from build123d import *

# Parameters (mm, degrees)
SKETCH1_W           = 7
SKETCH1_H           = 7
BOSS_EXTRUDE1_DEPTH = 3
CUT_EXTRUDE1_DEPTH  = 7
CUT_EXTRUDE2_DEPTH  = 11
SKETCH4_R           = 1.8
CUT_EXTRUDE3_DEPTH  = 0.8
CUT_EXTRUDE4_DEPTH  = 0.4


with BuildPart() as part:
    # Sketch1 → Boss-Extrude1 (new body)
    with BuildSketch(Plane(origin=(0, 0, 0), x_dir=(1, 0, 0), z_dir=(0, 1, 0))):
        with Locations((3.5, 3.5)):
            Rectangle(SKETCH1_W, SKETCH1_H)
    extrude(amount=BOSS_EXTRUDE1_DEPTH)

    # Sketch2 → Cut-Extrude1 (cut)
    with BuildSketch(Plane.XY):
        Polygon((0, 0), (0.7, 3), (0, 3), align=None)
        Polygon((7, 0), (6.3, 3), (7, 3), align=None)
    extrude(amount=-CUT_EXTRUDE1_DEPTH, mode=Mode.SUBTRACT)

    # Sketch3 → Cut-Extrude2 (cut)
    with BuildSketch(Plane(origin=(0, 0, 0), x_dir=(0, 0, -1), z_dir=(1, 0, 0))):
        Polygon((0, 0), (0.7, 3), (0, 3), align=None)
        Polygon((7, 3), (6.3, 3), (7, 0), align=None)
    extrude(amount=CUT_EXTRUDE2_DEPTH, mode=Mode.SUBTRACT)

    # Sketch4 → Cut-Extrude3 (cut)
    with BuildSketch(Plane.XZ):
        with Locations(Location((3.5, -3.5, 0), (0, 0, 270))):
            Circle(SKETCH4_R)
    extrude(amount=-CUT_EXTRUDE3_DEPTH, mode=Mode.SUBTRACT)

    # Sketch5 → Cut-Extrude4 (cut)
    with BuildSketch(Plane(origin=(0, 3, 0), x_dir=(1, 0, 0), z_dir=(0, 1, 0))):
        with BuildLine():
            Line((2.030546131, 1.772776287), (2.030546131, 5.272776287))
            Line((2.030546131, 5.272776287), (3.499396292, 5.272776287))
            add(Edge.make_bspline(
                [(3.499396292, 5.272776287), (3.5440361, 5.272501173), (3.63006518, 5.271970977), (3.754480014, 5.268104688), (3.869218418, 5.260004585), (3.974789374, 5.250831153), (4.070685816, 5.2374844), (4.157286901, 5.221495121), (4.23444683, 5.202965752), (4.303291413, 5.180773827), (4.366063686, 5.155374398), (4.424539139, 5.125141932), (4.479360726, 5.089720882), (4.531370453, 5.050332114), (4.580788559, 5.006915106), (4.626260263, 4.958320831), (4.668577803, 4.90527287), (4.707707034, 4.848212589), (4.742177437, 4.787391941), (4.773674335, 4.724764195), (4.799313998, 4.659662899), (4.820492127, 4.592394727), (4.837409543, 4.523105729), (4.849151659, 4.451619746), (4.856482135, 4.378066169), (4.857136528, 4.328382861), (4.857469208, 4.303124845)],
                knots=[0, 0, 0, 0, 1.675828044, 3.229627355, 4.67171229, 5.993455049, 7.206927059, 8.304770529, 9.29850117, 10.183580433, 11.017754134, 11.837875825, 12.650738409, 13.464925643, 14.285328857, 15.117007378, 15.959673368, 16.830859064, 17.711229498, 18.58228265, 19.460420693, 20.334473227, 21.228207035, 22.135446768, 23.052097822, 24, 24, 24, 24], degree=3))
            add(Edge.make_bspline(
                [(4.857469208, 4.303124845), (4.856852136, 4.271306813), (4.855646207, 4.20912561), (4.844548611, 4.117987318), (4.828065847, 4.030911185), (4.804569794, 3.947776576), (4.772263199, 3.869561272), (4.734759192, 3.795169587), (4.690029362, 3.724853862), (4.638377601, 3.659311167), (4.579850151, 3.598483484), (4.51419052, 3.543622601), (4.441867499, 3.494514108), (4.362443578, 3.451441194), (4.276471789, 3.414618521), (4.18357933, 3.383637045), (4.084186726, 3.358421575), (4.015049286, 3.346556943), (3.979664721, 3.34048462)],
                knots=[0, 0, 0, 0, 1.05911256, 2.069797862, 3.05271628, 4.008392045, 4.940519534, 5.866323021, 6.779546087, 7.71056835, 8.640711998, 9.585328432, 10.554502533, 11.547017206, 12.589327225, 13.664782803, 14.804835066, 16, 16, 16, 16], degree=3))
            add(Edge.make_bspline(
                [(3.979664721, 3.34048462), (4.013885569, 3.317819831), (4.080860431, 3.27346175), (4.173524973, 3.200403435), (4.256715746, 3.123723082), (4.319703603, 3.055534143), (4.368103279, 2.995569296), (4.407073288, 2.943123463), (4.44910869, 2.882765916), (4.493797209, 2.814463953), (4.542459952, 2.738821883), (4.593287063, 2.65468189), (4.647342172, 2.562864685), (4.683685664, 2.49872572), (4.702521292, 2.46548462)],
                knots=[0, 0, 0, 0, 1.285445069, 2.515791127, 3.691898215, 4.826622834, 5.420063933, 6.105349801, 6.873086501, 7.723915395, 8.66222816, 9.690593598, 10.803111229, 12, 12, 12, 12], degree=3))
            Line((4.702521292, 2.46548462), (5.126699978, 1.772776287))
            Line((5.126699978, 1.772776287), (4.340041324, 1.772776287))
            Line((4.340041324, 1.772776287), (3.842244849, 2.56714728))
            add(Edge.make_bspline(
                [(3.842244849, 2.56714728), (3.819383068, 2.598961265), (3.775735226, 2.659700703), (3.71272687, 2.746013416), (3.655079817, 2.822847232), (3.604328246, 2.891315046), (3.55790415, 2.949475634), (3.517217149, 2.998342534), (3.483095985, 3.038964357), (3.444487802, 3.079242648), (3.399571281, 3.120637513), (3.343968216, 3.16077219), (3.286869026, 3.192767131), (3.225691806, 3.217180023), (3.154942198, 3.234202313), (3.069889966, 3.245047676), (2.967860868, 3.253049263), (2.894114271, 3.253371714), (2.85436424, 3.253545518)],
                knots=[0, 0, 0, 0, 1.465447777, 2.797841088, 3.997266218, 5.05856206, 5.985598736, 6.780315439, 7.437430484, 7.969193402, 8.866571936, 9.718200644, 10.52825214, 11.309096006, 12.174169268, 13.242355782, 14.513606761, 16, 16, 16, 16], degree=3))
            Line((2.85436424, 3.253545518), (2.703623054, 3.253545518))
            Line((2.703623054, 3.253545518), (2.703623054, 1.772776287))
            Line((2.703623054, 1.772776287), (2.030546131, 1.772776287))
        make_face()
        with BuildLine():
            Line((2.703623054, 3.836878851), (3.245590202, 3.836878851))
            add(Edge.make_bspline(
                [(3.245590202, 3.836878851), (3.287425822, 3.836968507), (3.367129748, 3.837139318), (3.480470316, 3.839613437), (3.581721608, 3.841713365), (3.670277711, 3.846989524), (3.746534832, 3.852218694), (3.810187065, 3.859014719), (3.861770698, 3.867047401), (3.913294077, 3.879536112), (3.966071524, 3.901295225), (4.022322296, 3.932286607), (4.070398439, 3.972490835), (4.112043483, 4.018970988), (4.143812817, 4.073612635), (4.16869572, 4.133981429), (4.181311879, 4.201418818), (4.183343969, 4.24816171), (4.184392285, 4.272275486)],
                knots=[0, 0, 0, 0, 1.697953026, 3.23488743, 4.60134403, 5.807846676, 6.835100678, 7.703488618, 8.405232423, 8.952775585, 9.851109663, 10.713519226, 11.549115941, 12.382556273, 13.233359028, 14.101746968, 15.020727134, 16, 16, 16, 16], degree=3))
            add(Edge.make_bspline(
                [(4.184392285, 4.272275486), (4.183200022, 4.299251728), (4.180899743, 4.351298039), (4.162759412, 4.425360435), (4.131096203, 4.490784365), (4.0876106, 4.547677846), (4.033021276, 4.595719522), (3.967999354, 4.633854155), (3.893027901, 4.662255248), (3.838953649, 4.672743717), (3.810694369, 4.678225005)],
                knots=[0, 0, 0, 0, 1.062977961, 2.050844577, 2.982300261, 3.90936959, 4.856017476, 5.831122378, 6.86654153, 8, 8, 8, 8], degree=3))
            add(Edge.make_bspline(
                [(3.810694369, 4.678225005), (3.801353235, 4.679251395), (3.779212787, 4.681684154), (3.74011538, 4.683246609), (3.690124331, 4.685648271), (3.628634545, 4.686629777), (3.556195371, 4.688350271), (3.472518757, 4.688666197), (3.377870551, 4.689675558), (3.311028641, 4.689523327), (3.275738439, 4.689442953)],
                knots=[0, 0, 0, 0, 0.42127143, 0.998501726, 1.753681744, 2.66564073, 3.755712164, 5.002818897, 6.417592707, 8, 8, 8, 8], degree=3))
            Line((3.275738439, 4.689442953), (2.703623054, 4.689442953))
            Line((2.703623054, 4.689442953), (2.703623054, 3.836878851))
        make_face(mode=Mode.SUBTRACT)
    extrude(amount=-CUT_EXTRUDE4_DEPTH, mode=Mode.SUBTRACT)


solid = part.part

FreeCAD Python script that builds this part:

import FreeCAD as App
import Part
import Sketcher

doc = App.newDocument("Part")
params = doc.addObject("Spreadsheet::Sheet", "Params")
for row, (alias, value) in enumerate([
    ("sketch1_width", "7 mm"),
    ("pad1_length", "3 mm"),
    ("sketch2_height", "3 mm"),
    ("sketch2_width", "0.7 mm"),
    ("pocket1_length", "7 mm"),
    ("sketch3_width", "3 mm"),
    ("sketch3_height", "0.7 mm"),
    ("pocket2_length", "11 mm"),
    ("sketch4_diameter", "3.6 mm"),
    ("pocket3_length", "0.8 mm"),
    ("sketch5_height", "3.5 mm"),
    ("pocket4_length", "0.4 mm"),
], start=1):
    params.set(f"A{row}", alias)
    params.set(f"B{row}", "=" + value)
    params.setAlias(f"B{row}", alias)

body = doc.addObject("PartDesign::Body", "Body")

# Sketch on XZ plane
sketch1 = body.newObject("Sketcher::SketchObject", "Sketch")
sketch1.AttachmentSupport = (doc.getObject("XZ_Plane"), [""])
sketch1.MapMode = "FlatFace"
sketch1.addGeometry(Part.LineSegment(App.Vector(0, -7, 0), App.Vector(0, 0, 0)), False)
sketch1.addGeometry(Part.LineSegment(App.Vector(0, 0, 0), App.Vector(7, 0, 0)), False)
sketch1.addGeometry(Part.LineSegment(App.Vector(7, 0, 0), App.Vector(7, -7, 0)), False)
sketch1.addGeometry(Part.LineSegment(App.Vector(7, -7, 0), App.Vector(0, -7, 0)), False)
sketch1.addConstraint(Sketcher.Constraint("Coincident", 0, 2, 1, 1))
sketch1.addConstraint(Sketcher.Constraint("Coincident", 1, 2, 2, 1))
sketch1.addConstraint(Sketcher.Constraint("Coincident", 2, 2, 3, 1))
sketch1.addConstraint(Sketcher.Constraint("Coincident", 3, 2, 0, 1))
sketch1.addConstraint(Sketcher.Constraint("Vertical", 0))
sketch1.addConstraint(Sketcher.Constraint("Horizontal", 1))
sketch1.addConstraint(Sketcher.Constraint("Vertical", 2))
sketch1.addConstraint(Sketcher.Constraint("Horizontal", 3))
sketch1.addConstraint(Sketcher.Constraint("Coincident", 0, 2, -1, 1))
sketch1.addConstraint(Sketcher.Constraint("Equal", 3, 0))
sketch1.addConstraint(Sketcher.Constraint("DistanceX", 1, 1, 1, 2, 7.0))
sketch1.setExpression("Constraints[10]", "Params.sketch1_width")
pad1 = body.newObject("PartDesign::Pad", "Pad")
pad1.Profile = sketch1
pad1.setExpression("Length", "Params.pad1_length")
pad1.Reversed = True

# Sketch on XY plane
sketch2 = body.newObject("Sketcher::SketchObject", "Sketch001")
sketch2.AttachmentSupport = (doc.getObject("XY_Plane"), [""])
sketch2.MapMode = "FlatFace"
sketch2.addGeometry(Part.LineSegment(App.Vector(0, 0, 0), App.Vector(0.7, 3, 0)), False)
sketch2.addGeometry(Part.LineSegment(App.Vector(0.7, 3, 0), App.Vector(0, 3, 0)), False)
sketch2.addGeometry(Part.LineSegment(App.Vector(0, 3, 0), App.Vector(0, 0, 0)), False)
sketch2.addGeometry(Part.LineSegment(App.Vector(6.3, 3, 0), App.Vector(7, 0, 0)), False)
sketch2.addGeometry(Part.LineSegment(App.Vector(7, 0, 0), App.Vector(7, 3, 0)), False)
sketch2.addGeometry(Part.LineSegment(App.Vector(7, 3, 0), App.Vector(6.3, 3, 0)), False)
sketch2.addConstraint(Sketcher.Constraint("Coincident", 0, 2, 1, 1))
sketch2.addConstraint(Sketcher.Constraint("Coincident", 1, 2, 2, 1))
sketch2.addConstraint(Sketcher.Constraint("Coincident", 2, 2, 0, 1))
sketch2.addConstraint(Sketcher.Constraint("Coincident", 3, 2, 4, 1))
sketch2.addConstraint(Sketcher.Constraint("Coincident", 4, 2, 5, 1))
sketch2.addConstraint(Sketcher.Constraint("Coincident", 5, 2, 3, 1))
sketch2.addConstraint(Sketcher.Constraint("Horizontal", 1))
sketch2.addConstraint(Sketcher.Constraint("Vertical", 2))
sketch2.addConstraint(Sketcher.Constraint("Vertical", 4))
sketch2.addConstraint(Sketcher.Constraint("Horizontal", 5))
sketch2.addConstraint(Sketcher.Constraint("Coincident", 2, 2, -1, 1))
sketch2.addConstraint(Sketcher.Constraint("PointOnObject", 3, 2, -1))
sketch2.addConstraint(Sketcher.Constraint("Horizontal", 1, 2, 4, 2))
sketch2.addConstraint(Sketcher.Constraint("Equal", 1, 5))
sketch2.addConstraint(Sketcher.Constraint("DistanceY", 2, 2, 2, 1, 3.0))
sketch2.addConstraint(Sketcher.Constraint("DistanceX", 1, 2, 1, 1, 0.7))
sketch2.addConstraint(Sketcher.Constraint("DistanceX", -1, 1, 3, 2, 7.0))
sketch2.setExpression("Constraints[14]", "Params.sketch2_height")
sketch2.setExpression("Constraints[15]", "Params.sketch2_width")
pocket1 = body.newObject("PartDesign::Pocket", "Pocket")
pocket1.Profile = sketch2
pocket1.setExpression("Length", "Params.pocket1_length")

# Sketch on YZ plane
sketch3 = body.newObject("Sketcher::SketchObject", "Sketch002")
sketch3.AttachmentSupport = (doc.getObject("YZ_Plane"), [""])
sketch3.MapMode = "FlatFace"
sketch3.addGeometry(Part.LineSegment(App.Vector(0, 0, 0), App.Vector(3, -0.7, 0)), False)
sketch3.addGeometry(Part.LineSegment(App.Vector(3, -0.7, 0), App.Vector(3, 0, 0)), False)
sketch3.addGeometry(Part.LineSegment(App.Vector(3, 0, 0), App.Vector(0, 0, 0)), False)
sketch3.addGeometry(Part.LineSegment(App.Vector(3, -7, 0), App.Vector(3, -6.3, 0)), False)
sketch3.addGeometry(Part.LineSegment(App.Vector(3, -6.3, 0), App.Vector(0, -7, 0)), False)
sketch3.addGeometry(Part.LineSegment(App.Vector(0, -7, 0), App.Vector(3, -7, 0)), False)
sketch3.addConstraint(Sketcher.Constraint("Coincident", 0, 2, 1, 1))
sketch3.addConstraint(Sketcher.Constraint("Coincident", 1, 2, 2, 1))
sketch3.addConstraint(Sketcher.Constraint("Coincident", 2, 2, 0, 1))
sketch3.addConstraint(Sketcher.Constraint("Coincident", 3, 2, 4, 1))
sketch3.addConstraint(Sketcher.Constraint("Coincident", 4, 2, 5, 1))
sketch3.addConstraint(Sketcher.Constraint("Coincident", 5, 2, 3, 1))
sketch3.addConstraint(Sketcher.Constraint("Vertical", 1))
sketch3.addConstraint(Sketcher.Constraint("Horizontal", 2))
sketch3.addConstraint(Sketcher.Constraint("Vertical", 3))
sketch3.addConstraint(Sketcher.Constraint("Horizontal", 5))
sketch3.addConstraint(Sketcher.Constraint("Coincident", 2, 2, -1, 1))
sketch3.addConstraint(Sketcher.Constraint("PointOnObject", 4, 2, -2))
sketch3.addConstraint(Sketcher.Constraint("Vertical", 1, 2, 3, 2))
sketch3.addConstraint(Sketcher.Constraint("Equal", 1, 3))
sketch3.addConstraint(Sketcher.Constraint("DistanceX", 2, 2, 2, 1, 3.0))
sketch3.addConstraint(Sketcher.Constraint("DistanceY", 1, 1, 1, 2, 0.7))
sketch3.addConstraint(Sketcher.Constraint("DistanceY", 4, 2, -1, 1, 7.0))
sketch3.setExpression("Constraints[14]", "Params.sketch3_width")
sketch3.setExpression("Constraints[15]", "Params.sketch3_height")
pocket2 = body.newObject("PartDesign::Pocket", "Pocket001")
pocket2.Profile = sketch3
pocket2.setExpression("Length", "Params.pocket2_length")
pocket2.Reversed = True

# Sketch on XZ plane
sketch4 = body.newObject("Sketcher::SketchObject", "Sketch003")
sketch4.AttachmentSupport = (doc.getObject("XZ_Plane"), [""])
sketch4.MapMode = "FlatFace"
sketch4.addGeometry(Part.Circle(App.Vector(3.5, -3.5, 0), App.Vector(0, 0, 1), 1.8), False)
sketch4.addConstraint(Sketcher.Constraint("Diameter", 0, 3.6))
sketch4.addConstraint(Sketcher.Constraint("DistanceX", -1, 1, 0, 3, 3.5))
sketch4.addConstraint(Sketcher.Constraint("DistanceY", 0, 3, -1, 1, 3.5))
sketch4.setExpression("Constraints[0]", "Params.sketch4_diameter")
pocket3 = body.newObject("PartDesign::Pocket", "Pocket002")
pocket3.Profile = sketch4
pocket3.setExpression("Length", "Params.pocket3_length")

# Sketch on XZ plane
sketch5 = body.newObject("Sketcher::SketchObject", "Sketch004")
sketch5.AttachmentSupport = (doc.getObject("XZ_Plane"), [""])
sketch5.MapMode = "FlatFace"
sketch5.AttachmentOffset = App.Placement(App.Vector(0, 0, -3), App.Rotation())
sketch5.addGeometry(Part.LineSegment(App.Vector(2.030546, -5.272776, 0), App.Vector(2.030546, -1.772776, 0)), False)
sketch5.addGeometry(Part.LineSegment(App.Vector(2.030546, -1.772776, 0), App.Vector(2.703623, -1.772776, 0)), False)
sketch5.addGeometry(Part.LineSegment(App.Vector(2.703623, -1.772776, 0), App.Vector(2.703623, -3.253546, 0)), False)
sketch5.addGeometry(Part.LineSegment(App.Vector(2.703623, -3.253546, 0), App.Vector(2.854364, -3.253546, 0)), False)
sketch5.addGeometry(Part.BSplineCurve([App.Vector(3.842245, -2.567147, 0), App.Vector(3.819383, -2.598961, 0), App.Vector(3.775735, -2.659701, 0), App.Vector(3.712727, -2.746013, 0), App.Vector(3.65508, -2.822847, 0), App.Vector(3.604328, -2.891315, 0), App.Vector(3.557904, -2.949476, 0), App.Vector(3.517217, -2.998343, 0), App.Vector(3.483096, -3.038964, 0), App.Vector(3.444488, -3.079243, 0), App.Vector(3.399571, -3.120638, 0), App.Vector(3.343968, -3.160772, 0), App.Vector(3.286869, -3.192767, 0), App.Vector(3.225692, -3.21718, 0), App.Vector(3.154942, -3.234202, 0), App.Vector(3.06989, -3.245048, 0), App.Vector(2.967861, -3.253049, 0), App.Vector(2.894114, -3.253372, 0), App.Vector(2.854364, -3.253546, 0)], [4, 1, 1, 1, 1, 1, 1, 1, 1, 1, 1, 1, 1, 1, 1, 1, 4], [0, 1.465447777, 2.797841088, 3.997266218, 5.05856206, 5.985598736, 6.780315439, 7.437430484, 7.969193402, 8.866571936, 9.718200644, 10.52825214, 11.309096006, 12.174169268, 13.242355782, 14.513606761, 16], False, 3, [1, 1, 1, 1, 1, 1, 1, 1, 1, 1, 1, 1, 1, 1, 1, 1, 1, 1, 1], False), False)
sketch5.addGeometry(Part.LineSegment(App.Vector(3.842245, -2.567147, 0), App.Vector(4.340041, -1.772776, 0)), False)
sketch5.addGeometry(Part.LineSegment(App.Vector(4.340041, -1.772776, 0), App.Vector(5.1267, -1.772776, 0)), False)
sketch5.addGeometry(Part.LineSegment(App.Vector(5.1267, -1.772776, 0), App.Vector(4.702521, -2.465485, 0)), False)
sketch5.addGeometry(Part.BSplineCurve([App.Vector(3.979665, -3.340485, 0), App.Vector(4.013886, -3.31782, 0), App.Vector(4.08086, -3.273462, 0), App.Vector(4.173525, -3.200403, 0), App.Vector(4.256716, -3.123723, 0), App.Vector(4.319704, -3.055534, 0), App.Vector(4.368103, -2.995569, 0), App.Vector(4.407073, -2.943123, 0), App.Vector(4.449109, -2.882766, 0), App.Vector(4.493797, -2.814464, 0), App.Vector(4.54246, -2.738822, 0), App.Vector(4.593287, -2.654682, 0), App.Vector(4.647342, -2.562865, 0), App.Vector(4.683686, -2.498726, 0), App.Vector(4.702521, -2.465485, 0)], [4, 1, 1, 1, 1, 1, 1, 1, 1, 1, 1, 1, 4], [0, 1.285445069, 2.515791127, 3.691898215, 4.826622834, 5.420063933, 6.105349801, 6.873086501, 7.723915395, 8.66222816, 9.690593598, 10.803111229, 12], False, 3, [1, 1, 1, 1, 1, 1, 1, 1, 1, 1, 1, 1, 1, 1, 1], False), False)
sketch5.addGeometry(Part.BSplineCurve([App.Vector(4.857469, -4.303125, 0), App.Vector(4.856852, -4.271307, 0), App.Vector(4.855646, -4.209126, 0), App.Vector(4.844549, -4.117987, 0), App.Vector(4.828066, -4.030911, 0), App.Vector(4.80457, -3.947777, 0), App.Vector(4.772263, -3.869561, 0), App.Vector(4.734759, -3.79517, 0), App.Vector(4.690029, -3.724854, 0), App.Vector(4.638378, -3.659311, 0), App.Vector(4.57985, -3.598483, 0), App.Vector(4.514191, -3.543623, 0), App.Vector(4.441867, -3.494514, 0), App.Vector(4.362444, -3.451441, 0), App.Vector(4.276472, -3.414619, 0), App.Vector(4.183579, -3.383637, 0), App.Vector(4.084187, -3.358422, 0), App.Vector(4.015049, -3.346557, 0), App.Vector(3.979665, -3.340485, 0)], [4, 1, 1, 1, 1, 1, 1, 1, 1, 1, 1, 1, 1, 1, 1, 1, 4], [0, 1.05911256, 2.069797862, 3.05271628, 4.008392045, 4.940519534, 5.866323021, 6.779546087, 7.71056835, 8.640711998, 9.585328432, 10.554502533, 11.547017206, 12.589327225, 13.664782803, 14.804835066, 16], False, 3, [1, 1, 1, 1, 1, 1, 1, 1, 1, 1, 1, 1, 1, 1, 1, 1, 1, 1, 1], False), False)
sketch5.addGeometry(Part.BSplineCurve([App.Vector(3.499396, -5.272776, 0), App.Vector(3.544036, -5.272501, 0), App.Vector(3.630065, -5.271971, 0), App.Vector(3.75448, -5.268105, 0), App.Vector(3.869218, -5.260005, 0), App.Vector(3.974789, -5.250831, 0), App.Vector(4.070686, -5.237484, 0), App.Vector(4.157287, -5.221495, 0), App.Vector(4.234447, -5.202966, 0), App.Vector(4.303291, -5.180774, 0), App.Vector(4.366064, -5.155374, 0), App.Vector(4.424539, -5.125142, 0), App.Vector(4.479361, -5.089721, 0), App.Vector(4.53137, -5.050332, 0), App.Vector(4.580789, -5.006915, 0), App.Vector(4.62626, -4.958321, 0), App.Vector(4.668578, -4.905273, 0), App.Vector(4.707707, -4.848213, 0), App.Vector(4.742177, -4.787392, 0), App.Vector(4.773674, -4.724764, 0), App.Vector(4.799314, -4.659663, 0), App.Vector(4.820492, -4.592395, 0), App.Vector(4.83741, -4.523106, 0), App.Vector(4.849152, -4.45162, 0), App.Vector(4.856482, -4.378066, 0), App.Vector(4.857137, -4.328383, 0), App.Vector(4.857469, -4.303125, 0)], [4, 1, 1, 1, 1, 1, 1, 1, 1, 1, 1, 1, 1, 1, 1, 1, 1, 1, 1, 1, 1, 1, 1, 1, 4], [0, 1.675828044, 3.229627355, 4.67171229, 5.993455049, 7.206927059, 8.304770529, 9.29850117, 10.183580433, 11.017754134, 11.837875825, 12.650738409, 13.464925643, 14.285328857, 15.117007378, 15.959673368, 16.830859064, 17.711229498, 18.58228265, 19.460420693, 20.334473227, 21.228207035, 22.135446768, 23.052097822, 24], False, 3, [1, 1, 1, 1, 1, 1, 1, 1, 1, 1, 1, 1, 1, 1, 1, 1, 1, 1, 1, 1, 1, 1, 1, 1, 1, 1, 1], False), False)
sketch5.addGeometry(Part.LineSegment(App.Vector(3.499396, -5.272776, 0), App.Vector(2.030546, -5.272776, 0)), False)
sketch5.addGeometry(Part.LineSegment(App.Vector(2.703623, -3.836879, 0), App.Vector(2.703623, -4.689443, 0)), False)
sketch5.addGeometry(Part.LineSegment(App.Vector(2.703623, -4.689443, 0), App.Vector(3.275738, -4.689443, 0)), False)
sketch5.addGeometry(Part.BSplineCurve([App.Vector(3.810694, -4.678225, 0), App.Vector(3.801353, -4.679251, 0), App.Vector(3.779213, -4.681684, 0), App.Vector(3.740115, -4.683247, 0), App.Vector(3.690124, -4.685648, 0), App.Vector(3.628635, -4.68663, 0), App.Vector(3.556195, -4.68835, 0), App.Vector(3.472519, -4.688666, 0), App.Vector(3.377871, -4.689676, 0), App.Vector(3.311029, -4.689523, 0), App.Vector(3.275738, -4.689443, 0)], [4, 1, 1, 1, 1, 1, 1, 1, 4], [0, 0.42127143, 0.998501726, 1.753681744, 2.66564073, 3.755712164, 5.002818897, 6.417592707, 8], False, 3, [1, 1, 1, 1, 1, 1, 1, 1, 1, 1, 1], False), False)
sketch5.addGeometry(Part.BSplineCurve([App.Vector(4.184392, -4.272275, 0), App.Vector(4.1832, -4.299252, 0), App.Vector(4.1809, -4.351298, 0), App.Vector(4.162759, -4.42536, 0), App.Vector(4.131096, -4.490784, 0), App.Vector(4.087611, -4.547678, 0), App.Vector(4.033021, -4.59572, 0), App.Vector(3.967999, -4.633854, 0), App.Vector(3.893028, -4.662255, 0), App.Vector(3.838954, -4.672744, 0), App.Vector(3.810694, -4.678225, 0)], [4, 1, 1, 1, 1, 1, 1, 1, 4], [0, 1.062977961, 2.050844577, 2.982300261, 3.90936959, 4.856017476, 5.831122378, 6.86654153, 8], False, 3, [1, 1, 1, 1, 1, 1, 1, 1, 1, 1, 1], False), False)
sketch5.addGeometry(Part.BSplineCurve([App.Vector(3.24559, -3.836879, 0), App.Vector(3.287426, -3.836969, 0), App.Vector(3.36713, -3.837139, 0), App.Vector(3.48047, -3.839613, 0), App.Vector(3.581722, -3.841713, 0), App.Vector(3.670278, -3.84699, 0), App.Vector(3.746535, -3.852219, 0), App.Vector(3.810187, -3.859015, 0), App.Vector(3.861771, -3.867047, 0), App.Vector(3.913294, -3.879536, 0), App.Vector(3.966072, -3.901295, 0), App.Vector(4.022322, -3.932287, 0), App.Vector(4.070398, -3.972491, 0), App.Vector(4.112043, -4.018971, 0), App.Vector(4.143813, -4.073613, 0), App.Vector(4.168696, -4.133981, 0), App.Vector(4.181312, -4.201419, 0), App.Vector(4.183344, -4.248162, 0), App.Vector(4.184392, -4.272275, 0)], [4, 1, 1, 1, 1, 1, 1, 1, 1, 1, 1, 1, 1, 1, 1, 1, 4], [0, 1.697953026, 3.23488743, 4.60134403, 5.807846676, 6.835100678, 7.703488618, 8.405232423, 8.952775585, 9.851109663, 10.713519226, 11.549115941, 12.382556273, 13.233359028, 14.101746968, 15.020727134, 16], False, 3, [1, 1, 1, 1, 1, 1, 1, 1, 1, 1, 1, 1, 1, 1, 1, 1, 1, 1, 1], False), False)
sketch5.addGeometry(Part.LineSegment(App.Vector(3.24559, -3.836879, 0), App.Vector(2.703623, -3.836879, 0)), False)
sketch5.addConstraint(Sketcher.Constraint("Block", 4))
sketch5.addConstraint(Sketcher.Constraint("Block", 8))
sketch5.addConstraint(Sketcher.Constraint("Block", 9))
sketch5.addConstraint(Sketcher.Constraint("Block", 10))
sketch5.addConstraint(Sketcher.Constraint("Block", 14))
sketch5.addConstraint(Sketcher.Constraint("Block", 15))
sketch5.addConstraint(Sketcher.Constraint("Block", 16))
sketch5.addConstraint(Sketcher.Constraint("Coincident", 0, 2, 1, 1))
sketch5.addConstraint(Sketcher.Constraint("Coincident", 1, 2, 2, 1))
sketch5.addConstraint(Sketcher.Constraint("Coincident", 2, 2, 3, 1))
sketch5.addConstraint(Sketcher.Constraint("Coincident", 3, 2, 4, 2))
sketch5.addConstraint(Sketcher.Constraint("Coincident", 4, 1, 5, 1))
sketch5.addConstraint(Sketcher.Constraint("Coincident", 5, 2, 6, 1))
sketch5.addConstraint(Sketcher.Constraint("Coincident", 6, 2, 7, 1))
sketch5.addConstraint(Sketcher.Constraint("Coincident", 7, 2, 8, 2))
sketch5.addConstraint(Sketcher.Constraint("Coincident", 10, 1, 11, 1))
sketch5.addConstraint(Sketcher.Constraint("Coincident", 11, 2, 0, 1))
sketch5.addConstraint(Sketcher.Constraint("Coincident", 12, 2, 13, 1))
sketch5.addConstraint(Sketcher.Constraint("Coincident", 13, 2, 14, 2))
sketch5.addConstraint(Sketcher.Constraint("Coincident", 16, 1, 17, 1))
sketch5.addConstraint(Sketcher.Constraint("Coincident", 17, 2, 12, 1))
sketch5.addConstraint(Sketcher.Constraint("Vertical", 0))
sketch5.addConstraint(Sketcher.Constraint("Horizontal", 1))
sketch5.addConstraint(Sketcher.Constraint("Vertical", 2))
sketch5.addConstraint(Sketcher.Constraint("Horizontal", 3))
sketch5.addConstraint(Sketcher.Constraint("Horizontal", 6))
sketch5.addConstraint(Sketcher.Constraint("Horizontal", 11))
sketch5.addConstraint(Sketcher.Constraint("Vertical", 12))
sketch5.addConstraint(Sketcher.Constraint("Horizontal", 13))
sketch5.addConstraint(Sketcher.Constraint("Horizontal", 17))
sketch5.addConstraint(Sketcher.Constraint("Horizontal", 1, 2, 5, 2))
sketch5.addConstraint(Sketcher.Constraint("Vertical", 2, 2, 12, 2))
sketch5.addConstraint(Sketcher.Constraint("DistanceY", 0, 1, 0, 2, 3.5))
sketch5.addConstraint(Sketcher.Constraint("DistanceX", 3, 1, 3, 2, 0.150741))
sketch5.addConstraint(Sketcher.Constraint("DistanceX", 6, 1, 6, 2, 0.786659))
sketch5.addConstraint(Sketcher.Constraint("DistanceX", 11, 2, 11, 1, 1.46885))
sketch5.addConstraint(Sketcher.Constraint("DistanceX", -1, 1, 6, 2, 5.1267))
sketch5.setExpression("Constraints[32]", "Params.sketch5_height")
pocket4 = body.newObject("PartDesign::Pocket", "Pocket003")
pocket4.Profile = sketch5
pocket4.setExpression("Length", "Params.pocket4_length")
pocket4.Reversed = True

doc.recompute()
